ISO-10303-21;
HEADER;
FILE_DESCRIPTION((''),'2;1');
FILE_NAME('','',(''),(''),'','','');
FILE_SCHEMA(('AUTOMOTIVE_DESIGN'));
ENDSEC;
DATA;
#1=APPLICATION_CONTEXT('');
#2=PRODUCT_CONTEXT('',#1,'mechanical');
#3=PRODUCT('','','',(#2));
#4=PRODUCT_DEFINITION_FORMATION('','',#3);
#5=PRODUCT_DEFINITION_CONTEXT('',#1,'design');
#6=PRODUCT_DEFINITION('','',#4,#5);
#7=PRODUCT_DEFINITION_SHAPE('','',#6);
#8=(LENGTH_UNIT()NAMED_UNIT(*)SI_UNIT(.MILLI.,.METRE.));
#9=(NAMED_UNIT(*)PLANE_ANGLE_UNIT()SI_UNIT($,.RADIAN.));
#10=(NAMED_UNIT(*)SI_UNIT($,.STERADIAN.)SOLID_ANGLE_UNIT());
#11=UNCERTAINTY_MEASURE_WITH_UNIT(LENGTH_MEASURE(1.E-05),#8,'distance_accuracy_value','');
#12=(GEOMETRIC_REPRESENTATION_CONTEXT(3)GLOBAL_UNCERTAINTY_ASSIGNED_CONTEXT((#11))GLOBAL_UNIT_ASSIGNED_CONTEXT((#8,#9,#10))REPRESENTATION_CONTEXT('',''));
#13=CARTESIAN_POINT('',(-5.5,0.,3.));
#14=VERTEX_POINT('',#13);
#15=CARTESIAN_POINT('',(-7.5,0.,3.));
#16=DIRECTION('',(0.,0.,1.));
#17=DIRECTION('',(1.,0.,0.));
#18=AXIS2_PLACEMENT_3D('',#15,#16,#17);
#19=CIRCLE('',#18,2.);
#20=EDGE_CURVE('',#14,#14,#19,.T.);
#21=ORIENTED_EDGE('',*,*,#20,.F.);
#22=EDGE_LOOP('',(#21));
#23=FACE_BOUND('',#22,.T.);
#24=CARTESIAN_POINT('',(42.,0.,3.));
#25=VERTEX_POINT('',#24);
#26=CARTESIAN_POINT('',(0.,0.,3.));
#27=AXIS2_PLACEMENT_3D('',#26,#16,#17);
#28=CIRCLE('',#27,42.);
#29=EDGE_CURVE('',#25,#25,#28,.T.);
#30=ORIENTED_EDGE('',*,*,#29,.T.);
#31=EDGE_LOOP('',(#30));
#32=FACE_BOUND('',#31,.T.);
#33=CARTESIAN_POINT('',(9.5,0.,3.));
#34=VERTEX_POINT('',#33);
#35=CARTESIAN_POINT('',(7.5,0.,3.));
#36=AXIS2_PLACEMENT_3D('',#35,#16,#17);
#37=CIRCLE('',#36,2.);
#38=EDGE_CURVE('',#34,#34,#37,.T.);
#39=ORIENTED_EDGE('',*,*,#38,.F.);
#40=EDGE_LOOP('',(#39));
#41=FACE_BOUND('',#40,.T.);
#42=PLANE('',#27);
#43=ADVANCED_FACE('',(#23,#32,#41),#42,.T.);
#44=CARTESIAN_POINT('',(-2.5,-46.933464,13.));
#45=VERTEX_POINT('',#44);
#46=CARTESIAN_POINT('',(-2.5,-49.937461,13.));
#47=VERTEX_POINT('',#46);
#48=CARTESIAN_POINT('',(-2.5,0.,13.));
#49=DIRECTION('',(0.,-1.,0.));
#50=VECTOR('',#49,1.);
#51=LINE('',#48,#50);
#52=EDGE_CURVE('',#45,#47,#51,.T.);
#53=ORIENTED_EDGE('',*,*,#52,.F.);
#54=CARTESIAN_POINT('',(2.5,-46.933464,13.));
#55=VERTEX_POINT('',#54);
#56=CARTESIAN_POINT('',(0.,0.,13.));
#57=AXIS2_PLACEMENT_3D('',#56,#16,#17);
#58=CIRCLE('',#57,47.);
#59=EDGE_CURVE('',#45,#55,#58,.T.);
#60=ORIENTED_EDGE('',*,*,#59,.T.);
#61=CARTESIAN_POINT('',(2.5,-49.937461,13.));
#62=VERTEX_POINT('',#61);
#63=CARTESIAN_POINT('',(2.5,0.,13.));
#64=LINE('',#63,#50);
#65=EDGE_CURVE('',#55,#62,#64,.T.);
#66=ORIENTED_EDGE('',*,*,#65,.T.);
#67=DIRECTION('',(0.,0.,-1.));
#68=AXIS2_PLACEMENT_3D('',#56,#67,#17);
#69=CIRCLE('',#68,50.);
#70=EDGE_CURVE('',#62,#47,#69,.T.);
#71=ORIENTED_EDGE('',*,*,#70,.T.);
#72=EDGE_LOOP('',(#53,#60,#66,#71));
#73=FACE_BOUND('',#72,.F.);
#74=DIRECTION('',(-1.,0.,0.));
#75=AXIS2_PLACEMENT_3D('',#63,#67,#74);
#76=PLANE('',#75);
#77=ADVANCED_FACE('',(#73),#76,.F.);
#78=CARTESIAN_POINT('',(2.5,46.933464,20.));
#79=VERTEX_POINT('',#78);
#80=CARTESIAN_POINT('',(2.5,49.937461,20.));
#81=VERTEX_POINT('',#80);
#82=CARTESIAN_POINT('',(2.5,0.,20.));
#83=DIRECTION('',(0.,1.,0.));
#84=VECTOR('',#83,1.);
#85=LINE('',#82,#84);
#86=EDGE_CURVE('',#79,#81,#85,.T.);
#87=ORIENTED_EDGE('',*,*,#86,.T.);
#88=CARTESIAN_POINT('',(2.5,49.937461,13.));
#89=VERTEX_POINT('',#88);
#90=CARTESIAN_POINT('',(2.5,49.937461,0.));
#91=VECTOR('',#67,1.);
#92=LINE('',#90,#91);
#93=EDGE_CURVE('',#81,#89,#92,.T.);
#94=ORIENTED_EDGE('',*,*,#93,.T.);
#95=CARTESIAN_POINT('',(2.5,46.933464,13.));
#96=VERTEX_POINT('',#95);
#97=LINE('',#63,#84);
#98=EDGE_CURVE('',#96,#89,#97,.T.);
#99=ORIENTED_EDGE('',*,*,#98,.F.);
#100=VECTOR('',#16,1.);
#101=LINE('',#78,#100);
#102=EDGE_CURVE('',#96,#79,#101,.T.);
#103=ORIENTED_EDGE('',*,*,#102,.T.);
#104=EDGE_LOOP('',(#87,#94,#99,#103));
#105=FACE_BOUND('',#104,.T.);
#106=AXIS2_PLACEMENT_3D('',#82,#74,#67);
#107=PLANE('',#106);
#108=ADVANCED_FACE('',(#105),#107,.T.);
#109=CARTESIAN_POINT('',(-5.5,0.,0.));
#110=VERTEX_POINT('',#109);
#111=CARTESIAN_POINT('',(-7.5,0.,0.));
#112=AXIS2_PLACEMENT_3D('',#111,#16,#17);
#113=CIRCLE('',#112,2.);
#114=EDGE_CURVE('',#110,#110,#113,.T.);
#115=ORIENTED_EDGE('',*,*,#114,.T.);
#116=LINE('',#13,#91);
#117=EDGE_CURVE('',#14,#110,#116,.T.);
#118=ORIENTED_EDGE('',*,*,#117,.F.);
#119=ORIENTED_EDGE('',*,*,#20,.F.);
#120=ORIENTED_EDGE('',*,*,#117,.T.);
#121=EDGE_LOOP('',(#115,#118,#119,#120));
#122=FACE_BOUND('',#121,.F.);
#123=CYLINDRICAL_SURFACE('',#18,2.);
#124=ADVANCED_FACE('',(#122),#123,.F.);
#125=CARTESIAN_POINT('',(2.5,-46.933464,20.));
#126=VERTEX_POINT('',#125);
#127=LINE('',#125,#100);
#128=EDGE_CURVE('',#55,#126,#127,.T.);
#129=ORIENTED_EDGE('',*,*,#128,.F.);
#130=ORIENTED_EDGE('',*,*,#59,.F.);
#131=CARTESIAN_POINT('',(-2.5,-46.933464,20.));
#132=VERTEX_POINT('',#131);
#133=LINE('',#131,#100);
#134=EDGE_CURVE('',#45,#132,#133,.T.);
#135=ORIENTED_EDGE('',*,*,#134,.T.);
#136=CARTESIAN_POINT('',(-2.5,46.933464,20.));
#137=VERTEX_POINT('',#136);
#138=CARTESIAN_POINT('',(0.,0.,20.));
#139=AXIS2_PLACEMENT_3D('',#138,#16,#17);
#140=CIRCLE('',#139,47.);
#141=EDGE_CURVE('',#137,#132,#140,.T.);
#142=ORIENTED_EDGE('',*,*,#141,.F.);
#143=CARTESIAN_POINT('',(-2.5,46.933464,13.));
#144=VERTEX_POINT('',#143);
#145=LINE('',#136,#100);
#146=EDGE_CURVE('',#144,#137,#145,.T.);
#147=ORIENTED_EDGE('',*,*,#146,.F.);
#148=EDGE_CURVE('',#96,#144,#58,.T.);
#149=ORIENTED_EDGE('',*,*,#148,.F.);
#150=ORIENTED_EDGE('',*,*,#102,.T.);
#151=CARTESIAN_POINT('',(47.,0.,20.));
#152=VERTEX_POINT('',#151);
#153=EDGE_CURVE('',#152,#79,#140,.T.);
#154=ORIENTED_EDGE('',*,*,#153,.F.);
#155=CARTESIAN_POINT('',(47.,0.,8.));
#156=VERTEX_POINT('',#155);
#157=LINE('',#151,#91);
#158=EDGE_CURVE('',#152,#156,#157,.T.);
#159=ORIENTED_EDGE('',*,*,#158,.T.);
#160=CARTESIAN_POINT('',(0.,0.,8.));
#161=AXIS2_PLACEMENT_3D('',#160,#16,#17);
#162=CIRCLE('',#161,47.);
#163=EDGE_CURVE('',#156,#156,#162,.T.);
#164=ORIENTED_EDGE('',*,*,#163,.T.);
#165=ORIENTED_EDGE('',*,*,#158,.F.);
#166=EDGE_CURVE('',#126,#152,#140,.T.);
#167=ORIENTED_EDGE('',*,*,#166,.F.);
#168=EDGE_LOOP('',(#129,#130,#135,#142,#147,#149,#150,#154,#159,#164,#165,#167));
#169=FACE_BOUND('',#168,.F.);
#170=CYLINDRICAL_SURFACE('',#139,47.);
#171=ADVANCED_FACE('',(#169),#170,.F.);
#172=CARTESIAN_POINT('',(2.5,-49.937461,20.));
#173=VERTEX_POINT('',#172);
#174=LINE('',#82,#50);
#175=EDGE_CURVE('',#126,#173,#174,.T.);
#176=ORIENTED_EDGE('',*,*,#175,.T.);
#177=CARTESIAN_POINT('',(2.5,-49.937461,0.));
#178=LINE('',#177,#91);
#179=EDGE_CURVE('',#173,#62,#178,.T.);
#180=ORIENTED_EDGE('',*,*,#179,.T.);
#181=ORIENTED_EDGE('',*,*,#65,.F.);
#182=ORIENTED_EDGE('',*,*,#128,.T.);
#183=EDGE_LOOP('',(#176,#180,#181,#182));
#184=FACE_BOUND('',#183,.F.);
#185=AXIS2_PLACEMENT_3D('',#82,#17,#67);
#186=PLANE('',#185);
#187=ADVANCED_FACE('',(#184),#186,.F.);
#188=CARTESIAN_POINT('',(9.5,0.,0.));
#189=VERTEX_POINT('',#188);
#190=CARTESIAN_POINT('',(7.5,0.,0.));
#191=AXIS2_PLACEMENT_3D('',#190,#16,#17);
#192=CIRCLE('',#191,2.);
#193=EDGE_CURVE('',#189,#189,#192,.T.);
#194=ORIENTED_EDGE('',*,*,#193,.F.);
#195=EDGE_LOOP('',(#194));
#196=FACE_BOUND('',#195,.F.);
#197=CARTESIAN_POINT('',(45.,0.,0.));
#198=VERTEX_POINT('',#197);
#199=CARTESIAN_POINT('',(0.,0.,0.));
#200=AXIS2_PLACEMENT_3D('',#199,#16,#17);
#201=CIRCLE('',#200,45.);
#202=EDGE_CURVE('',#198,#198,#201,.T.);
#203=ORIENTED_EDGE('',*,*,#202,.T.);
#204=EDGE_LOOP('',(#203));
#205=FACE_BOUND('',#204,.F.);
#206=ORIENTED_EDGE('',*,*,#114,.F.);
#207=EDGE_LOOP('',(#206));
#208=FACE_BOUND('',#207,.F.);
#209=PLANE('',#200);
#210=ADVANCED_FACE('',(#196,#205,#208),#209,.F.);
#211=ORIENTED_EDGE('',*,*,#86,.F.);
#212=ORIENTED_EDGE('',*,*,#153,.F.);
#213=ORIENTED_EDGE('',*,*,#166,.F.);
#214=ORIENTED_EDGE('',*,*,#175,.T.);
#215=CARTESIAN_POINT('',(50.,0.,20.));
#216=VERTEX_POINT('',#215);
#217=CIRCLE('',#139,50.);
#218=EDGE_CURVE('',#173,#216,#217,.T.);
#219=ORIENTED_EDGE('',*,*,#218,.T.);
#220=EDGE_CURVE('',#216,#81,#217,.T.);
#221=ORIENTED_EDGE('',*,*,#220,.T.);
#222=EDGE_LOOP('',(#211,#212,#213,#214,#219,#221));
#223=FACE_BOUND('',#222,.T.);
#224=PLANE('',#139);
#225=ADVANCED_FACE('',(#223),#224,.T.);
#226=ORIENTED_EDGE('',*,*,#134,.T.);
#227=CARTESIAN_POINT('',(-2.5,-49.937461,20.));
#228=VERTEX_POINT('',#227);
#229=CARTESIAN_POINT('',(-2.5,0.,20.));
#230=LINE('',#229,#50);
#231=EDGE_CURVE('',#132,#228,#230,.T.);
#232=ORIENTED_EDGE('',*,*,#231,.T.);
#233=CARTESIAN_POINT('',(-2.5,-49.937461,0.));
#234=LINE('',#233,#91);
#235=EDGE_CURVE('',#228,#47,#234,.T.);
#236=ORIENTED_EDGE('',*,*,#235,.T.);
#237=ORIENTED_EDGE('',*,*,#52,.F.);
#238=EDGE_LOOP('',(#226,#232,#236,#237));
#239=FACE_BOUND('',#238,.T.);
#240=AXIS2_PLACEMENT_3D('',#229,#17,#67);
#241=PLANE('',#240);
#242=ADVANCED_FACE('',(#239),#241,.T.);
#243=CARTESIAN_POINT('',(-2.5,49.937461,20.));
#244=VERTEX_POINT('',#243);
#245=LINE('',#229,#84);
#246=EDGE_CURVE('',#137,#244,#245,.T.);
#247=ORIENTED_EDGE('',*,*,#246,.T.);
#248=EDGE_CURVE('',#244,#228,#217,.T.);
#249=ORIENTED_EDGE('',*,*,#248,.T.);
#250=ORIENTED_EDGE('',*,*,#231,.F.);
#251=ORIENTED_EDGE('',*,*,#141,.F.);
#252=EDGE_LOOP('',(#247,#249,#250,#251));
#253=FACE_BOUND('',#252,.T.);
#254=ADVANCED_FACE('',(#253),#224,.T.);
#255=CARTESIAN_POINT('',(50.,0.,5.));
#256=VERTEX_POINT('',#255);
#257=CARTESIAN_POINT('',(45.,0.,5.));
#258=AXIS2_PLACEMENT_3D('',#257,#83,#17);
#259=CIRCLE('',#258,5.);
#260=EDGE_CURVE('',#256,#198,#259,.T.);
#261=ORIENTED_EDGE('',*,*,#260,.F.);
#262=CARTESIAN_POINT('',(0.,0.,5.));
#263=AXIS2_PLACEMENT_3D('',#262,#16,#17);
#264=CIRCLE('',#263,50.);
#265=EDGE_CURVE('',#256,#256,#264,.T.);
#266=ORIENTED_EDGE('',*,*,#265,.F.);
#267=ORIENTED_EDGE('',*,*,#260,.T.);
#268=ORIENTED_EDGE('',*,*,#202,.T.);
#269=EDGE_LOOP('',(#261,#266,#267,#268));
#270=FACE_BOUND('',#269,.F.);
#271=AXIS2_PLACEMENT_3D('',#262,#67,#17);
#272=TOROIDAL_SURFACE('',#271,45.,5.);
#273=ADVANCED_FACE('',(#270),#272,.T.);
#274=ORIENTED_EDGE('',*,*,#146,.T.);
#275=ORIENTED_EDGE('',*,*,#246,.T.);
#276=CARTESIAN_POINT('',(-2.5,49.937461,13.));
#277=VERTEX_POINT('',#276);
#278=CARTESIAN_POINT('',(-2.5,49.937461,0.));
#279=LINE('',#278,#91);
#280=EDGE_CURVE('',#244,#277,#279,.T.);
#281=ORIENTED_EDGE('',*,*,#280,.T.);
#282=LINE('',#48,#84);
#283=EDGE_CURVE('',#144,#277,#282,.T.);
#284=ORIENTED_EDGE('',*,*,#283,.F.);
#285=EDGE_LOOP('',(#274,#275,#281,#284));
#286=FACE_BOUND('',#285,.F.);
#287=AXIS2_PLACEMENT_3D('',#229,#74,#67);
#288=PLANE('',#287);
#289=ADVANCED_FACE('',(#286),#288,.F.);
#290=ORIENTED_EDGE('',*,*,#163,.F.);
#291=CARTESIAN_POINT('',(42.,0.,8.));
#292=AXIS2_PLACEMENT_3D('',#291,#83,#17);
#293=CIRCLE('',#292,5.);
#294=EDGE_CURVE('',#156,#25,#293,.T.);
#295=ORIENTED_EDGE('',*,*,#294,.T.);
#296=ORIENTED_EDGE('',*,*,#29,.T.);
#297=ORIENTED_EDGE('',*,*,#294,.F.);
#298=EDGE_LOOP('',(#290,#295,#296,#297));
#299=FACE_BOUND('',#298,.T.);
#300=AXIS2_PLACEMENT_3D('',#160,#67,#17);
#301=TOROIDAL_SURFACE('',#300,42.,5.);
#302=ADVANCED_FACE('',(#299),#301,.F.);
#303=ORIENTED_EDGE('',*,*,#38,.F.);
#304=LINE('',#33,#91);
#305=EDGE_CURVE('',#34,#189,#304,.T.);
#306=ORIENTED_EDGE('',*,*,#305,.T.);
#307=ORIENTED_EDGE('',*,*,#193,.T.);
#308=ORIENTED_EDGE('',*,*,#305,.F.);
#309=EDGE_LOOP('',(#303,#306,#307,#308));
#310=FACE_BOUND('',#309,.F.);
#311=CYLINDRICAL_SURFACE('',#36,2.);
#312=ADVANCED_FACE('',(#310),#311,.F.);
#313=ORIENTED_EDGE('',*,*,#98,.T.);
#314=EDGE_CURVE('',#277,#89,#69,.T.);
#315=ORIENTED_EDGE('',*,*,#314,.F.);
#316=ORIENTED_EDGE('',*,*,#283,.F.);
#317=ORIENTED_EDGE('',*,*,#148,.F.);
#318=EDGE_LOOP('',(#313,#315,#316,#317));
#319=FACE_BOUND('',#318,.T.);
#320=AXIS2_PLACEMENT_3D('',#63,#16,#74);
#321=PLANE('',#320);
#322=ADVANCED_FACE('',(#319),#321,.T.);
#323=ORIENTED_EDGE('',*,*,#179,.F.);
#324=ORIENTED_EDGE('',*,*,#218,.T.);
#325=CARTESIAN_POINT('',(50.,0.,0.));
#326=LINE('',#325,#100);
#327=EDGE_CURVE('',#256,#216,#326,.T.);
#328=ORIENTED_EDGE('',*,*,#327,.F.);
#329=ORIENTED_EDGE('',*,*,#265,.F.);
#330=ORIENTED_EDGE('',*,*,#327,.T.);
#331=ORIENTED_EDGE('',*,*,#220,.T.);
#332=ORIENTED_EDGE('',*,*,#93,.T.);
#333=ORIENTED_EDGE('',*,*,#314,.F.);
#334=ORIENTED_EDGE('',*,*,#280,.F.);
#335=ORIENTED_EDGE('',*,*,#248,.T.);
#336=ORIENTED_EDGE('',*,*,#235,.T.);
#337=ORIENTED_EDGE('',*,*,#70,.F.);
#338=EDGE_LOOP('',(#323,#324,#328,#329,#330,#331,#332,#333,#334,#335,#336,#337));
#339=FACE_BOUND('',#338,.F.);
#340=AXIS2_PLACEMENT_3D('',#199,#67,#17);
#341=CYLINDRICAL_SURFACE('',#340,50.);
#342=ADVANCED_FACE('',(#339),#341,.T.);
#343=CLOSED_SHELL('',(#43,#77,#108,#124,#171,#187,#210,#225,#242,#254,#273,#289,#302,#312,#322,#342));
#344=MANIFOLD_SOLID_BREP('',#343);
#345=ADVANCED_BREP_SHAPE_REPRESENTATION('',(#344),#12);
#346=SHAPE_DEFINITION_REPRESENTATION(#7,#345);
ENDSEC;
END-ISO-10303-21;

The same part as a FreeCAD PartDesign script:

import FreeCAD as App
import Part
import Sketcher

V = App.Vector
Q = App.Units.Quantity


def edges_at(feature, points):
    """Names of the edges that pass closest to the given points."""
    edges = feature.Shape.Edges
    near = lambda p: min(range(len(edges)), key=lambda i: edges[i].distToShape(Part.Vertex(*p))[0])
    return sorted({f"Edge{near(p) + 1}" for p in points})

doc = App.newDocument("Part")
params = doc.addObject("Spreadsheet::Sheet", "Params")
for row, (alias, value) in enumerate([
    ("sketch1_diameter", "100 mm"),
    ("pad1_length", "20 mm"),
    ("fillet_radius", "5 mm"),
    ("sketch2_diameter", "94 mm"),
    ("pocket1_length", "17 mm"),
    ("fillet2_radius", "5 mm"),
    ("sketch3_diameter", "4 mm"),
    ("pocket2_length", "5 mm"),
    ("sketch4_width", "5 mm"),
    ("sketch4_height", "7 mm"),
], start=1):
    params.set(f"A{row}", alias)
    params.set(f"B{row}", "=" + value)
    params.setAlias(f"B{row}", alias)

body = doc.addObject("PartDesign::Body", "Body")

sketch1 = doc.addObject("Sketcher::SketchObject", "Sketch")
body.addObject(sketch1)
sketch1.AttachmentSupport = (doc.XY_Plane, [""])
sketch1.MapMode = "FlatFace"
sketch1.addGeometry(Part.Circle(V(0, 0, 0), V(0, 0, 1), 50), False)
sketch1.addConstraint(Sketcher.Constraint("Coincident", 0, 3, -1, 1))
sketch1.addConstraint(Sketcher.Constraint("Diameter", 0, Q("100 mm")))
sketch1.setExpression("Constraints[1]", "Params.sketch1_diameter")
pad1 = doc.addObject("PartDesign::Pad", "Pad")
body.addObject(pad1)
pad1.Profile = sketch1
pad1.setExpression("Length", "Params.pad1_length")
doc.recompute()

fillet = doc.addObject("PartDesign::Fillet", "Fillet")
body.addObject(fillet)
fillet.Base = (pad1, edges_at(pad1, [(-50, 0, 0)]))
fillet.setExpression("Radius", "Params.fillet_radius")

sketch2 = doc.addObject("Sketcher::SketchObject", "Sketch001")
body.addObject(sketch2)
sketch2.AttachmentSupport = (doc.XY_Plane, [""])
sketch2.MapMode = "FlatFace"
sketch2.AttachmentOffset = App.Placement(V(0, 0, 20), App.Rotation())
sketch2.addGeometry(Part.Circle(V(0, 0, 0), V(0, 0, 1), 47), False)
sketch2.addConstraint(Sketcher.Constraint("Coincident", 0, 3, -1, 1))
sketch2.addConstraint(Sketcher.Constraint("Diameter", 0, Q("94 mm")))
sketch2.setExpression("Constraints[1]", "Params.sketch2_diameter")
pocket1 = doc.addObject("PartDesign::Pocket", "Pocket")
body.addObject(pocket1)
pocket1.Profile = sketch2
pocket1.setExpression("Length", "Params.pocket1_length")
doc.recompute()

fillet2 = doc.addObject("PartDesign::Fillet", "Fillet001")
body.addObject(fillet2)
fillet2.Base = (pocket1, edges_at(pocket1, [(-47, 0, 3)]))
fillet2.setExpression("Radius", "Params.fillet2_radius")

sketch3 = doc.addObject("Sketcher::SketchObject", "Sketch002")
body.addObject(sketch3)
sketch3.AttachmentSupport = (doc.XY_Plane, [""])
sketch3.MapMode = "FlatFace"
sketch3.AttachmentOffset = App.Placement(V(0, 0, 3), App.Rotation())
sketch3.addGeometry(Part.Circle(V(-7.5, 0, 0), V(0, 0, 1), 2), False)
sketch3.addGeometry(Part.Circle(V(7.5, 0, 0), V(0, 0, 1), 2), False)
sketch3.addConstraint(Sketcher.Constraint("Equal", 0, 1))
sketch3.addConstraint(Sketcher.Constraint("Symmetric", 0, 3, 1, 3, -1, 1))
sketch3.addConstraint(Sketcher.Constraint("PointOnObject", 0, 3, -1))
sketch3.addConstraint(Sketcher.Constraint("Diameter", 0, Q("4 mm")))
sketch3.addConstraint(Sketcher.Constraint("DistanceX", 0, 3, 1, 3, Q("15 mm")))
sketch3.setExpression("Constraints[3]", "Params.sketch3_diameter")
pocket2 = doc.addObject("PartDesign::Pocket", "Pocket001")
body.addObject(pocket2)
pocket2.Profile = sketch3
pocket2.setExpression("Length", "Params.pocket2_length")

sketch4 = doc.addObject("Sketcher::SketchObject", "Sketch003")
body.addObject(sketch4)
sketch4.AttachmentSupport = (doc.XZ_Plane, [""])
sketch4.MapMode = "FlatFace"
sketch4.addGeometry(Part.LineSegment(V(-2.5, 20, 0), V(2.5, 20, 0)), False)
sketch4.addGeometry(Part.LineSegment(V(2.5, 20, 0), V(2.5, 13, 0)), False)
sketch4.addGeometry(Part.LineSegment(V(2.5, 13, 0), V(-2.5, 13, 0)), False)
sketch4.addGeometry(Part.LineSegment(V(-2.5, 13, 0), V(-2.5, 20, 0)), False)
sketch4.addConstraint(Sketcher.Constraint("Coincident", 0, 2, 1, 1))
sketch4.addConstraint(Sketcher.Constraint("Coincident", 1, 2, 2, 1))
sketch4.addConstraint(Sketcher.Constraint("Coincident", 2, 2, 3, 1))
sketch4.addConstraint(Sketcher.Constraint("Coincident", 3, 2, 0, 1))
sketch4.addConstraint(Sketcher.Constraint("Horizontal", 0))
sketch4.addConstraint(Sketcher.Constraint("Vertical", 1))
sketch4.addConstraint(Sketcher.Constraint("Horizontal", 2))
sketch4.addConstraint(Sketcher.Constraint("Vertical", 3))
sketch4.addConstraint(Sketcher.Constraint("DistanceX", 0, 1, 0, 2, Q("5 mm")))
sketch4.addConstraint(Sketcher.Constraint("DistanceY", 1, 2, 1, 1, Q("7 mm")))
sketch4.addConstraint(Sketcher.Constraint("DistanceY", -1, 1, 0, 2, Q("20 mm")))
sketch4.addConstraint(Sketcher.Constraint("DistanceX", -1, 1, 0, 2, Q("2.5 mm")))
sketch4.setExpression("Constraints[8]", "Params.sketch4_width")
sketch4.setExpression("Constraints[9]", "Params.sketch4_height")
pocket3 = doc.addObject("PartDesign::Pocket", "Pocket002")
body.addObject(pocket3)
pocket3.Profile = sketch4
pocket3.Type = "ThroughAll"
pocket3.Midplane = True

doc.recompute()
